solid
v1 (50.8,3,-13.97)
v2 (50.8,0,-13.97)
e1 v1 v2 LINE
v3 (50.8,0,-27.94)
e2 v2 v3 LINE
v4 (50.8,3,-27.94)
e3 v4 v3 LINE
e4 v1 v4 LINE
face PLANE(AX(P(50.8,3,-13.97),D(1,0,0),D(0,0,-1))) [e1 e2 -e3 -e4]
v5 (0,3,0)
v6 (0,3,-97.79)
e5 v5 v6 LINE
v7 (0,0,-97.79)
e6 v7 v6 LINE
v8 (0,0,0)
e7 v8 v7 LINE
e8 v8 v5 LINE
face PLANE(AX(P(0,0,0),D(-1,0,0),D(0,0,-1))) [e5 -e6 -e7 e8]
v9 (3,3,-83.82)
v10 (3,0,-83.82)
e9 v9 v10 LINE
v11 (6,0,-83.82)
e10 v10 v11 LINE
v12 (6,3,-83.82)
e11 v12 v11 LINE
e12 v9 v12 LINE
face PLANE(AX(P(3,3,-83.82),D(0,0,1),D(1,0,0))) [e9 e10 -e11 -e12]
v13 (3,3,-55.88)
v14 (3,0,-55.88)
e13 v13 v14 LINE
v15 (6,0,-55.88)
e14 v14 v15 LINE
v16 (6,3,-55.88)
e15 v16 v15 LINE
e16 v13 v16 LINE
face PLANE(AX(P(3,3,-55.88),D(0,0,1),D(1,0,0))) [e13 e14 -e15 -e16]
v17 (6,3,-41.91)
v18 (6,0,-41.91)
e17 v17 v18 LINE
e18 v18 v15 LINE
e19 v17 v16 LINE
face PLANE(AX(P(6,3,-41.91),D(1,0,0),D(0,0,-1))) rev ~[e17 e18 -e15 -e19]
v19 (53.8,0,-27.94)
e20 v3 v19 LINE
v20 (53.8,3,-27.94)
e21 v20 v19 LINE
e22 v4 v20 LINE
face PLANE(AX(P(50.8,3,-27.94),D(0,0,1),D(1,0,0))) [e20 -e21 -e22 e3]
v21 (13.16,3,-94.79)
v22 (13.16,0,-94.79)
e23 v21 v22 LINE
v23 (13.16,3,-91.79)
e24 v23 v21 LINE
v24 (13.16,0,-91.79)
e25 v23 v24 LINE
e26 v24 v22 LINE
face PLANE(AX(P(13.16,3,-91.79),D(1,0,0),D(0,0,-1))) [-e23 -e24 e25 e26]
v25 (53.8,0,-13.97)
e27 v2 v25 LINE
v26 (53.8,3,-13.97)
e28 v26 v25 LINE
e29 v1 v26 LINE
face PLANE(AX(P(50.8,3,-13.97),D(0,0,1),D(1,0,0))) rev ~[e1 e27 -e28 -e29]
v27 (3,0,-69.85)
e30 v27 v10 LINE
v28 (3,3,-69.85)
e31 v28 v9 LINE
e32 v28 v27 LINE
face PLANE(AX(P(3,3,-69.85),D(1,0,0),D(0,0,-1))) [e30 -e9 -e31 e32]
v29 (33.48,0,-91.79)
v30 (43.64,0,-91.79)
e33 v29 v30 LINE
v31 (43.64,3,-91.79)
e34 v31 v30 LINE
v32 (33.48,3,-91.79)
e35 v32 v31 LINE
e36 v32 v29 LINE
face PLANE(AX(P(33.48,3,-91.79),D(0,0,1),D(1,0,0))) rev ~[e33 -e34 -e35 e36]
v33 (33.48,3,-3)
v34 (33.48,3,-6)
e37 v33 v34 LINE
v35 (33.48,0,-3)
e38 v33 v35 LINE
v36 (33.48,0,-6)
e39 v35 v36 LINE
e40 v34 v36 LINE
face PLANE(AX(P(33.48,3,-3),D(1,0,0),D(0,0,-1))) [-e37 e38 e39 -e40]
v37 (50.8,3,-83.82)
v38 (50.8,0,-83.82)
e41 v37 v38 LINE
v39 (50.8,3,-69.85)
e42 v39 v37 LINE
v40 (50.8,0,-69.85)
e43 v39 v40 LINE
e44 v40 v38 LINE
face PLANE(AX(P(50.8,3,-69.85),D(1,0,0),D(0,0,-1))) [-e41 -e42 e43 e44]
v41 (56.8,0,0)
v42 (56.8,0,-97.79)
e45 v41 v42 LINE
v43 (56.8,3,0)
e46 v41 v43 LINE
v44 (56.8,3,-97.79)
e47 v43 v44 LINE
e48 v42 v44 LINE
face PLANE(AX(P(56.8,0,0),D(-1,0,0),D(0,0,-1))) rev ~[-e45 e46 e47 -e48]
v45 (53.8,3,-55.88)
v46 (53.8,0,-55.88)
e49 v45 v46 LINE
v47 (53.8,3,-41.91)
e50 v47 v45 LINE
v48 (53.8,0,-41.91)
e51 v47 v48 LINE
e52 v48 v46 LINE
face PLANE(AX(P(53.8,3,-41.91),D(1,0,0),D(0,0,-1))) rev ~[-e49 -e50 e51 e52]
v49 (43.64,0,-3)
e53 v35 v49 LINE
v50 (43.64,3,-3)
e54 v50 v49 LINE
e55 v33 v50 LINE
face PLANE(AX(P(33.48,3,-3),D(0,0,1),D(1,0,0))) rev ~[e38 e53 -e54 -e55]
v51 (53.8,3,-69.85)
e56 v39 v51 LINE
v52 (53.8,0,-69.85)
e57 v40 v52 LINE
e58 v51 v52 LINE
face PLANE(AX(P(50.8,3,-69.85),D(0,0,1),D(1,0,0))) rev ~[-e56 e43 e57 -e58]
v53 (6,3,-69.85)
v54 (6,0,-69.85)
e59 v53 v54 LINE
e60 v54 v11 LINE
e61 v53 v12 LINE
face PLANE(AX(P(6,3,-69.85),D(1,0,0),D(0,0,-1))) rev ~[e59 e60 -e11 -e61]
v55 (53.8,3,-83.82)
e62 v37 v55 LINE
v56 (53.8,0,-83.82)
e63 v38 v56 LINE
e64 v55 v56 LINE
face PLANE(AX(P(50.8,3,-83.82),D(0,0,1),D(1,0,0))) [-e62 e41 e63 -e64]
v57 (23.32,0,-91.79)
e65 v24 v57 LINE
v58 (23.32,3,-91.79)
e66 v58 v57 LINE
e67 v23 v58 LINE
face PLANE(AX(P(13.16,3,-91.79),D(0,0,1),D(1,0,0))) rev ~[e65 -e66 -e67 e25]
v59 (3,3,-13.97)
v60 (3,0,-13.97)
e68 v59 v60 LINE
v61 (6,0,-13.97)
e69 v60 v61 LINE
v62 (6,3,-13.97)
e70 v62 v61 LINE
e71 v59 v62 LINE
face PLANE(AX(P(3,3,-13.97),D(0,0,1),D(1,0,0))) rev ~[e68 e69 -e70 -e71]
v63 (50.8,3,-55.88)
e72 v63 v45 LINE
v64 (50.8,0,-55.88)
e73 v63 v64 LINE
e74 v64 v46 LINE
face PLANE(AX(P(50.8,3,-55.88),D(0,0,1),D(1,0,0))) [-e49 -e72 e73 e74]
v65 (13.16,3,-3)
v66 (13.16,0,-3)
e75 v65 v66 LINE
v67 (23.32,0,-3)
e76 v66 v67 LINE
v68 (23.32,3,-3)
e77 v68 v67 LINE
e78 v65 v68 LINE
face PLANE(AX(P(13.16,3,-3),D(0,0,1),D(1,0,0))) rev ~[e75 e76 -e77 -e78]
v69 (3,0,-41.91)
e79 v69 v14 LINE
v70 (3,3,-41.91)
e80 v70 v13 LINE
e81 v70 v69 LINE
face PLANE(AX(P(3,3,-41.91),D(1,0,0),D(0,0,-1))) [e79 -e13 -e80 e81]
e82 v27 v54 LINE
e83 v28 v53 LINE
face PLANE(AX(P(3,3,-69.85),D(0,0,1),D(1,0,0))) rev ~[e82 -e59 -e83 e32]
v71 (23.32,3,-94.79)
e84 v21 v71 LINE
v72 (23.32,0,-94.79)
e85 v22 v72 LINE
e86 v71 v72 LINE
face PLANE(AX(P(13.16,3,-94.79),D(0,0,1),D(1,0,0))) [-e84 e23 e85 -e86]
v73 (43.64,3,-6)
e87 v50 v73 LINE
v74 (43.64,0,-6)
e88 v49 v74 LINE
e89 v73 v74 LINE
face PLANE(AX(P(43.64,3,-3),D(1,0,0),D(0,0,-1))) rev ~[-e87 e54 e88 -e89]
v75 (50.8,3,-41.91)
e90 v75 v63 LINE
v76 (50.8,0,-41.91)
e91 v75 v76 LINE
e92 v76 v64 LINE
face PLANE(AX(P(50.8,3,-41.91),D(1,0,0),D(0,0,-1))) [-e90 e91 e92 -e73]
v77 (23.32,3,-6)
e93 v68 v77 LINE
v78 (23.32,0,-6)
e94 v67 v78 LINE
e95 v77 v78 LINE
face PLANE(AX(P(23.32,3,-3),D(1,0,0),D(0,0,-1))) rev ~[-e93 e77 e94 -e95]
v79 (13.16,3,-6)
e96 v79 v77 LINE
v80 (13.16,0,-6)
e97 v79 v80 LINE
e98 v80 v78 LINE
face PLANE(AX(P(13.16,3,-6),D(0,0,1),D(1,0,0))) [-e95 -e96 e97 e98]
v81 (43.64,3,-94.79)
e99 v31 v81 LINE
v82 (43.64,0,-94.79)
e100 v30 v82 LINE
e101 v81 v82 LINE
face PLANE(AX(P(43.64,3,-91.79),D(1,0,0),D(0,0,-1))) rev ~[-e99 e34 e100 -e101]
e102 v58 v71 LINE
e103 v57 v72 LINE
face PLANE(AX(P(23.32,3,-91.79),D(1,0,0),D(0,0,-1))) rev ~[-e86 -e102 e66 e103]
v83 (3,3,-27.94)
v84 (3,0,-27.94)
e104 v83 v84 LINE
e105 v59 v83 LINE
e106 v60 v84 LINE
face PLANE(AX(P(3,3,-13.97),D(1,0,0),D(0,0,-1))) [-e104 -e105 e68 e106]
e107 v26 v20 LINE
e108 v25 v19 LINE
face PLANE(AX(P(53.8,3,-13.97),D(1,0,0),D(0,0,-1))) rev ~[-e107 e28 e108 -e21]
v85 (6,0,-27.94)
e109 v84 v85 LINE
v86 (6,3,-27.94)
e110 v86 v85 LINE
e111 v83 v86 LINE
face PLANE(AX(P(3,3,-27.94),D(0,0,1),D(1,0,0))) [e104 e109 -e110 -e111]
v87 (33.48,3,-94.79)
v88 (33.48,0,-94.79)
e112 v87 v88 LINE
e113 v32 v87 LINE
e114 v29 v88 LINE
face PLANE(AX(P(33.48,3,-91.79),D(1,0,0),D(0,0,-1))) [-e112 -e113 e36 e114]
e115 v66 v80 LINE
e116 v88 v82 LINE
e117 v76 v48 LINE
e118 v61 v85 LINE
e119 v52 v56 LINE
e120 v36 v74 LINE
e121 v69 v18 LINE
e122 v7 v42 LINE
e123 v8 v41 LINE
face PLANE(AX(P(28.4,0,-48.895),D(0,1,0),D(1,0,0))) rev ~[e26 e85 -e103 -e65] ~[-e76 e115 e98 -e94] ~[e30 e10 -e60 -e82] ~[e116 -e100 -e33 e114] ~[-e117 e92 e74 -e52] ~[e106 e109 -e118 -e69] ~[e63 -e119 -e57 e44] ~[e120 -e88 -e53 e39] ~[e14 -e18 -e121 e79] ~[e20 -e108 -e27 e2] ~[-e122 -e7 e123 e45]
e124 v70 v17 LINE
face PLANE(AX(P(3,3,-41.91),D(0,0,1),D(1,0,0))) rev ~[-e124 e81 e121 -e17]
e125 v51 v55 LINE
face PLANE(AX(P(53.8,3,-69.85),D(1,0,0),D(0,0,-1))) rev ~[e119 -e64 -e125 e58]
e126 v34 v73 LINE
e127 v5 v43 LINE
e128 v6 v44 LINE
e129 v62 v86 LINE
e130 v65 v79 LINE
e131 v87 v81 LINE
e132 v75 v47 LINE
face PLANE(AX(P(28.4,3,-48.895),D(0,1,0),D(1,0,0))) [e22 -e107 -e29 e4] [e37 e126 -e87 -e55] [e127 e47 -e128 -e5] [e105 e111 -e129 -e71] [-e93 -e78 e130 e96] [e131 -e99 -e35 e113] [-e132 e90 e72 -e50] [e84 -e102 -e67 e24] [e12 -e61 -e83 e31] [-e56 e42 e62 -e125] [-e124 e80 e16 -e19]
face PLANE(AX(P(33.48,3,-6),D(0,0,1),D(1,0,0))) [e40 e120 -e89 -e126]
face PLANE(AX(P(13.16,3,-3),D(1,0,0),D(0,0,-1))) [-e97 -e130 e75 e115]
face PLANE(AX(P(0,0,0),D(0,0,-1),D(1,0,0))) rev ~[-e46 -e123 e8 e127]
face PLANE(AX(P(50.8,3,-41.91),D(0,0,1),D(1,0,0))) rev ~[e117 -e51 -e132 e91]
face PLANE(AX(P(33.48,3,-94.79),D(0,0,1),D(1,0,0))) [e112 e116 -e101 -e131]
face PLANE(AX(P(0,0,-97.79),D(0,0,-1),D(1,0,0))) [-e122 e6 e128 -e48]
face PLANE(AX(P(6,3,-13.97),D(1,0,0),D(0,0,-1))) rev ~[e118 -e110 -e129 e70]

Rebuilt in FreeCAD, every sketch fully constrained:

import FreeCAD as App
import Part
import Sketcher

V = App.Vector
Q = App.Units.Quantity


def add_polygon(sketch, points):
    """Adds a closed chain of lines whose ends are joined by coincident constraints."""
    first, n = sketch.GeometryCount, len(points)
    for a, b in zip(points, points[1:] + points[:1]):
        sketch.addGeometry(Part.LineSegment(App.Vector(*a, 0), App.Vector(*b, 0)), False)
    for i in range(n):
        sketch.addConstraint(Sketcher.Constraint("Coincident", first + i, 2, first + (i + 1) % n, 1))

doc = App.newDocument("Part")
body = doc.addObject("PartDesign::Body", "Body")

# Sketch on XZ plane
sketch1 = body.newObject("Sketcher::SketchObject", "Sketch")
sketch1.AttachmentSupport = (doc.getObject("XZ_Plane"), [""])
sketch1.MapMode = "FlatFace"
add_polygon(sketch1, [(0, -98), (0, 0), (57, 0), (57, -98)])  # lines 0-3
sketch1.addConstraint([
    Sketcher.Constraint("Vertical", 0),
    Sketcher.Constraint("Horizontal", 1),
    Sketcher.Constraint("Vertical", 2),
    Sketcher.Constraint("Horizontal", 3),
    Sketcher.Constraint("Coincident", 0, 2, -1, 1),
    Sketcher.Constraint("DistanceX", 1, 1, 1, 2, Q("56.8 mm")),
    Sketcher.Constraint("DistanceY", 0, 1, 0, 2, Q("97.79 mm")),
])
pad1 = body.newObject("PartDesign::Pad", "Pad")
pad1.Profile = sketch1
pad1.Length = 3
pad1.Reversed = True

# Sketch on XZ plane
sketch2 = body.newObject("Sketcher::SketchObject", "Sketch001")
sketch2.AttachmentSupport = (doc.getObject("XZ_Plane"), [""])
sketch2.MapMode = "FlatFace"
sketch2.AttachmentOffset = App.Placement(V(0, 0, -3), App.Rotation())
add_polygon(sketch2, [(13.2, -94.8), (13.2, -91.8), (23.3, -91.8), (23.3, -94.8)])  # lines 0-3
add_polygon(sketch2, [(33.5, -94.8), (33.5, -91.8), (43.6, -91.8), (43.6, -94.8)])  # lines 4-7
add_polygon(sketch2, [(50.8, -83.8), (50.8, -69.8), (53.8, -69.8), (53.8, -83.8)])  # lines 8-11
add_polygon(sketch2, [(50.8, -55.9), (50.8, -41.9), (53.8, -41.9), (53.8, -55.9)])  # lines 12-15
add_polygon(sketch2, [(50.8, -27.9), (50.8, -14), (53.8, -14), (53.8, -27.9)])  # lines 16-19
add_polygon(sketch2, [(33.5, -6), (33.5, -3), (43.6, -3), (43.6, -6)])  # lines 20-23
add_polygon(sketch2, [(13.2, -6), (13.2, -3), (23.3, -3), (23.3, -6)])  # lines 24-27
add_polygon(sketch2, [(3, -83.8), (3, -69.8), (6, -69.8), (6, -83.8)])  # lines 28-31
add_polygon(sketch2, [(3, -55.9), (3, -41.9), (6, -41.9), (6, -55.9)])  # lines 32-35
add_polygon(sketch2, [(3, -27.9), (3, -14), (6, -14), (6, -27.9)])  # lines 36-39
sketch2.addConstraint([
    Sketcher.Constraint("Vertical", 0),
    Sketcher.Constraint("Horizontal", 1),
    Sketcher.Constraint("Vertical", 2),
    Sketcher.Constraint("Horizontal", 3),
    Sketcher.Constraint("Vertical", 4),
    Sketcher.Constraint("Horizontal", 5),
    Sketcher.Constraint("Vertical", 6),
    Sketcher.Constraint("Horizontal", 7),
    Sketcher.Constraint("Vertical", 8),
    Sketcher.Constraint("Horizontal", 9),
    Sketcher.Constraint("Vertical", 10),
    Sketcher.Constraint("Horizontal", 11),
    Sketcher.Constraint("Vertical", 12),
    Sketcher.Constraint("Horizontal", 13),
    Sketcher.Constraint("Vertical", 14),
    Sketcher.Constraint("Horizontal", 15),
    Sketcher.Constraint("Vertical", 16),
    Sketcher.Constraint("Horizontal", 17),
    Sketcher.Constraint("Vertical", 18),
    Sketcher.Constraint("Horizontal", 19),
    Sketcher.Constraint("Vertical", 20),
    Sketcher.Constraint("Horizontal", 21),
    Sketcher.Constraint("Vertical", 22),
    Sketcher.Constraint("Horizontal", 23),
    Sketcher.Constraint("Vertical", 24),
    Sketcher.Constraint("Horizontal", 25),
    Sketcher.Constraint("Vertical", 26),
    Sketcher.Constraint("Horizontal", 27),
    Sketcher.Constraint("Vertical", 28),
    Sketcher.Constraint("Horizontal", 29),
    Sketcher.Constraint("Vertical", 30),
    Sketcher.Constraint("Horizontal", 31),
    Sketcher.Constraint("Vertical", 32),
    Sketcher.Constraint("Horizontal", 33),
    Sketcher.Constraint("Vertical", 34),
    Sketcher.Constraint("Horizontal", 35),
    Sketcher.Constraint("Vertical", 36),
    Sketcher.Constraint("Horizontal", 37),
    Sketcher.Constraint("Vertical", 38),
    Sketcher.Constraint("Horizontal", 39),
    Sketcher.Constraint("Horizontal", 1, 2, 4, 2),
    Sketcher.Constraint("Horizontal", 3, 2, 6, 2),
    Sketcher.Constraint("Horizontal", 21, 2, 24, 2),
    Sketcher.Constraint("Horizontal", 23, 2, 26, 2),
    Sketcher.Constraint("Horizontal", 9, 2, 28, 2),
    Sketcher.Constraint("Horizontal", 11, 2, 30, 2),
    Sketcher.Constraint("Horizontal", 13, 2, 32, 2),
    Sketcher.Constraint("Horizontal", 15, 2, 34, 2),
    Sketcher.Constraint("Horizontal", 17, 2, 36, 2),
    Sketcher.Constraint("Horizontal", 19, 2, 38, 2),
    Sketcher.Constraint("Vertical", 11, 2, 12, 2),
    Sketcher.Constraint("Vertical", 10, 2, 13, 2),
    Sketcher.Constraint("Vertical", 15, 2, 16, 2),
    Sketcher.Constraint("Vertical", 14, 2, 17, 2),
    Sketcher.Constraint("Vertical", 7, 2, 20, 2),
    Sketcher.Constraint("Vertical", 6, 2, 21, 2),
    Sketcher.Constraint("Vertical", 3, 2, 24, 2),
    Sketcher.Constraint("Vertical", 2, 2, 25, 2),
    Sketcher.Constraint("Vertical", 31, 2, 32, 2),
    Sketcher.Constraint("Vertical", 30, 2, 33, 2),
    Sketcher.Constraint("Vertical", 35, 2, 36, 2),
    Sketcher.Constraint("Vertical", 34, 2, 37, 2),
    Sketcher.Constraint("Equal", 3, 5),
    Sketcher.Constraint("Equal", 19, 29),
    Sketcher.Constraint("Equal", 39, 0),
    Sketcher.Constraint("Equal", 10, 12),
    Sketcher.Constraint("Equal", 14, 16),
    Sketcher.Constraint("Equal", 6, 20),
    Sketcher.Constraint("DistanceX", 9, 1, 9, 2, Q("3 mm")),
    Sketcher.Constraint("DistanceY", 20, 2, -1, 1, Q("3 mm")),
    Sketcher.Constraint("DistanceX", -1, 1, 28, 2, Q("3 mm")),
    Sketcher.Constraint("DistanceX", 1, 1, 1, 2, Q("10.16 mm")),
    Sketcher.Constraint("DistanceY", 8, 1, 8, 2, Q("13.97 mm")),
    Sketcher.Constraint("DistanceX", -1, 1, 8, 2, Q("50.8 mm")),
    Sketcher.Constraint("DistanceX", -1, 1, 0, 2, Q("13.16 mm")),
    Sketcher.Constraint("DistanceY", 0, 2, -1, 1, Q("91.79 mm")),
    Sketcher.Constraint("DistanceX", -1, 1, 4, 2, Q("33.48 mm")),
    Sketcher.Constraint("DistanceY", 8, 2, -1, 1, Q("69.85 mm")),
    Sketcher.Constraint("DistanceY", 12, 2, -1, 1, Q("41.91 mm")),
    Sketcher.Constraint("DistanceY", 16, 2, -1, 1, Q("13.97 mm")),
])
pocket1 = body.newObject("PartDesign::Pocket", "Pocket")
pocket1.Profile = sketch2
pocket1.Type = "ThroughAll"
pocket1.Reversed = True

doc.recompute()
